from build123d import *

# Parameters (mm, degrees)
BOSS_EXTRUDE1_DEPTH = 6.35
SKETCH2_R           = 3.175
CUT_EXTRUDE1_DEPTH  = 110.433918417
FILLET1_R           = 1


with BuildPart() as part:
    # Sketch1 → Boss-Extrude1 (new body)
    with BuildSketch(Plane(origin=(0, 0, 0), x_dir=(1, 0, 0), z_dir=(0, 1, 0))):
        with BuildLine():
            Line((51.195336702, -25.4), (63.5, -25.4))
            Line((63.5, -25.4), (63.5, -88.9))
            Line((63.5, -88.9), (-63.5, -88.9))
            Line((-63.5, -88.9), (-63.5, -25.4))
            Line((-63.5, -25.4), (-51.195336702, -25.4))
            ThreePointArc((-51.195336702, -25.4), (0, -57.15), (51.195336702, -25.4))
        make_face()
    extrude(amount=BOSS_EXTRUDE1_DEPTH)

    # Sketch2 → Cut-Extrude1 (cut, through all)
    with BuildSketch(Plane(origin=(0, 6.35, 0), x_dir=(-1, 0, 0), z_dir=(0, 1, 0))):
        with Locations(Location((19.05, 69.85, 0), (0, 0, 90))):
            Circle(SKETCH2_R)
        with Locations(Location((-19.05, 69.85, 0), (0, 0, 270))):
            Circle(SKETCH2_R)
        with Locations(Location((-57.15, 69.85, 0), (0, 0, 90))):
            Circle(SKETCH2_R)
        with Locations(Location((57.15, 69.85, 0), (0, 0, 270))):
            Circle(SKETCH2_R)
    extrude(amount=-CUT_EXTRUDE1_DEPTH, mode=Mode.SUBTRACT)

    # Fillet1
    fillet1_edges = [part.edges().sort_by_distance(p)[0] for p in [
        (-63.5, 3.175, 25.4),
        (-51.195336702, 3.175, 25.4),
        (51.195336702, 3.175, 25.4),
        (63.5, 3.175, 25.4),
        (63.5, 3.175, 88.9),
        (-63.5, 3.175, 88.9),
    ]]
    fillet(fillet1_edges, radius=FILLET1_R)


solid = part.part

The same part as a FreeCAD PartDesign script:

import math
import FreeCAD as App
import Part
import Sketcher
Q = App.Units.Quantity


def edges_at(feature, points):
    """Names of the edges that pass closest to the given points."""
    edges = feature.Shape.Edges
    near = lambda p: min(range(len(edges)), key=lambda i: edges[i].distToShape(Part.Vertex(*p))[0])
    return sorted({f"Edge{near(p) + 1}" for p in points})

doc = App.newDocument("Part")
body = doc.addObject("PartDesign::Body", "Body")

# Sketch on XZ plane
sketch1 = body.newObject("Sketcher::SketchObject", "Sketch")
sketch1.AttachmentSupport = (doc.getObject("XZ_Plane"), [""])
sketch1.MapMode = "FlatFace"
sketch1.addGeometry(Part.LineSegment(App.Vector(64, 25, 0), App.Vector(51, 25, 0)), False)
sketch1.addGeometry(Part.ArcOfCircle(Part.Circle(App.Vector(0, 0, 0), App.Vector(0, 0, 1), 57), math.radians(26), math.radians(154)), False)
sketch1.addGeometry(Part.LineSegment(App.Vector(-51, 25, 0), App.Vector(-64, 25, 0)), False)
sketch1.addGeometry(Part.LineSegment(App.Vector(-64, 25, 0), App.Vector(-64, 89, 0)), False)
sketch1.addGeometry(Part.LineSegment(App.Vector(-64, 89, 0), App.Vector(64, 89, 0)), False)
sketch1.addGeometry(Part.LineSegment(App.Vector(64, 89, 0), App.Vector(64, 25, 0)), False)
sketch1.addConstraint(Sketcher.Constraint("Coincident", 0, 2, 1, 1))
sketch1.addConstraint(Sketcher.Constraint("Coincident", 1, 2, 2, 1))
sketch1.addConstraint(Sketcher.Constraint("Coincident", 2, 2, 3, 1))
sketch1.addConstraint(Sketcher.Constraint("Coincident", 3, 2, 4, 1))
sketch1.addConstraint(Sketcher.Constraint("Coincident", 4, 2, 5, 1))
sketch1.addConstraint(Sketcher.Constraint("Coincident", 5, 2, 0, 1))
sketch1.addConstraint(Sketcher.Constraint("Horizontal", 0))
sketch1.addConstraint(Sketcher.Constraint("Horizontal", 2))
sketch1.addConstraint(Sketcher.Constraint("Vertical", 3))
sketch1.addConstraint(Sketcher.Constraint("Horizontal", 4))
sketch1.addConstraint(Sketcher.Constraint("Vertical", 5))
sketch1.addConstraint(Sketcher.Constraint("Coincident", 1, 3, -1, 1))
sketch1.addConstraint(Sketcher.Constraint("Symmetric", 2, 2, 5, 2, -2))
sketch1.addConstraint(Sketcher.Constraint("DistanceX", 4, 1, 4, 2, Q("5 in")))
sketch1.addConstraint(Sketcher.Constraint("Radius", 1, Q("2.25 in")))
sketch1.addConstraint(Sketcher.Constraint("DistanceY", 3, 1, 3, 2, Q("2.5 in")))
sketch1.addConstraint(Sketcher.Constraint("DistanceY", -1, 1, 0, 2, Q("1 in")))
pad1 = body.newObject("PartDesign::Pad", "Pad")
pad1.Profile = sketch1
pad1.Length = Q("0.25 in")
pad1.Reversed = True

# Sketch on XZ plane
sketch2 = body.newObject("Sketcher::SketchObject", "Sketch001")
sketch2.AttachmentSupport = (doc.getObject("XZ_Plane"), [""])
sketch2.MapMode = "FlatFace"
sketch2.AttachmentOffset = App.Placement(App.Vector(0, 0, -0.25 * 25.4), App.Rotation())
sketch2.addGeometry(Part.Circle(App.Vector(-19.1, 69.8, 0), App.Vector(0, 0, 1), 3.2), False)
sketch2.addGeometry(Part.Circle(App.Vector(19.1, 69.8, 0), App.Vector(0, 0, 1), 3.2), False)
sketch2.addGeometry(Part.Circle(App.Vector(57.1, 69.8, 0), App.Vector(0, 0, 1), 3.2), False)
sketch2.addGeometry(Part.Circle(App.Vector(-57.1, 69.8, 0), App.Vector(0, 0, 1), 3.2), False)
sketch2.addConstraint(Sketcher.Constraint("Equal", 0, 1))
sketch2.addConstraint(Sketcher.Constraint("Equal", 1, 2))
sketch2.addConstraint(Sketcher.Constraint("Equal", 2, 3))
sketch2.addConstraint(Sketcher.Constraint("Symmetric", 0, 3, 1, 3, -2))
sketch2.addConstraint(Sketcher.Constraint("Symmetric", 2, 3, 3, 3, -2))
sketch2.addConstraint(Sketcher.Constraint("Horizontal", 1, 3, 2, 3))
sketch2.addConstraint(Sketcher.Constraint("Diameter", 0, Q("0.25 in")))
sketch2.addConstraint(Sketcher.Constraint("DistanceX", 0, 3, 2, 3, Q("3 in")))
sketch2.addConstraint(Sketcher.Constraint("DistanceX", 0, 3, 1, 3, Q("1.5 in")))
sketch2.addConstraint(Sketcher.Constraint("DistanceY", -1, 1, 0, 3, Q("2.75 in")))
pocket1 = body.newObject("PartDesign::Pocket", "Pocket")
pocket1.Profile = sketch2
pocket1.Type = "ThroughAll"
pocket1.Reversed = True
doc.recompute()

fillet = body.newObject("PartDesign::Fillet", "Fillet")
fillet.Base = (pocket1, edges_at(pocket1, [
    (-63.5, 3.175, 25.4),
    (-51.195, 3.175, 25.4),
    (51.195, 3.175, 25.4),
    (63.5, 3.175, 25.4),
    (63.5, 3.175, 88.9),
    (-63.5, 3.175, 88.9),
]))
fillet.Radius = 1

doc.recompute()
